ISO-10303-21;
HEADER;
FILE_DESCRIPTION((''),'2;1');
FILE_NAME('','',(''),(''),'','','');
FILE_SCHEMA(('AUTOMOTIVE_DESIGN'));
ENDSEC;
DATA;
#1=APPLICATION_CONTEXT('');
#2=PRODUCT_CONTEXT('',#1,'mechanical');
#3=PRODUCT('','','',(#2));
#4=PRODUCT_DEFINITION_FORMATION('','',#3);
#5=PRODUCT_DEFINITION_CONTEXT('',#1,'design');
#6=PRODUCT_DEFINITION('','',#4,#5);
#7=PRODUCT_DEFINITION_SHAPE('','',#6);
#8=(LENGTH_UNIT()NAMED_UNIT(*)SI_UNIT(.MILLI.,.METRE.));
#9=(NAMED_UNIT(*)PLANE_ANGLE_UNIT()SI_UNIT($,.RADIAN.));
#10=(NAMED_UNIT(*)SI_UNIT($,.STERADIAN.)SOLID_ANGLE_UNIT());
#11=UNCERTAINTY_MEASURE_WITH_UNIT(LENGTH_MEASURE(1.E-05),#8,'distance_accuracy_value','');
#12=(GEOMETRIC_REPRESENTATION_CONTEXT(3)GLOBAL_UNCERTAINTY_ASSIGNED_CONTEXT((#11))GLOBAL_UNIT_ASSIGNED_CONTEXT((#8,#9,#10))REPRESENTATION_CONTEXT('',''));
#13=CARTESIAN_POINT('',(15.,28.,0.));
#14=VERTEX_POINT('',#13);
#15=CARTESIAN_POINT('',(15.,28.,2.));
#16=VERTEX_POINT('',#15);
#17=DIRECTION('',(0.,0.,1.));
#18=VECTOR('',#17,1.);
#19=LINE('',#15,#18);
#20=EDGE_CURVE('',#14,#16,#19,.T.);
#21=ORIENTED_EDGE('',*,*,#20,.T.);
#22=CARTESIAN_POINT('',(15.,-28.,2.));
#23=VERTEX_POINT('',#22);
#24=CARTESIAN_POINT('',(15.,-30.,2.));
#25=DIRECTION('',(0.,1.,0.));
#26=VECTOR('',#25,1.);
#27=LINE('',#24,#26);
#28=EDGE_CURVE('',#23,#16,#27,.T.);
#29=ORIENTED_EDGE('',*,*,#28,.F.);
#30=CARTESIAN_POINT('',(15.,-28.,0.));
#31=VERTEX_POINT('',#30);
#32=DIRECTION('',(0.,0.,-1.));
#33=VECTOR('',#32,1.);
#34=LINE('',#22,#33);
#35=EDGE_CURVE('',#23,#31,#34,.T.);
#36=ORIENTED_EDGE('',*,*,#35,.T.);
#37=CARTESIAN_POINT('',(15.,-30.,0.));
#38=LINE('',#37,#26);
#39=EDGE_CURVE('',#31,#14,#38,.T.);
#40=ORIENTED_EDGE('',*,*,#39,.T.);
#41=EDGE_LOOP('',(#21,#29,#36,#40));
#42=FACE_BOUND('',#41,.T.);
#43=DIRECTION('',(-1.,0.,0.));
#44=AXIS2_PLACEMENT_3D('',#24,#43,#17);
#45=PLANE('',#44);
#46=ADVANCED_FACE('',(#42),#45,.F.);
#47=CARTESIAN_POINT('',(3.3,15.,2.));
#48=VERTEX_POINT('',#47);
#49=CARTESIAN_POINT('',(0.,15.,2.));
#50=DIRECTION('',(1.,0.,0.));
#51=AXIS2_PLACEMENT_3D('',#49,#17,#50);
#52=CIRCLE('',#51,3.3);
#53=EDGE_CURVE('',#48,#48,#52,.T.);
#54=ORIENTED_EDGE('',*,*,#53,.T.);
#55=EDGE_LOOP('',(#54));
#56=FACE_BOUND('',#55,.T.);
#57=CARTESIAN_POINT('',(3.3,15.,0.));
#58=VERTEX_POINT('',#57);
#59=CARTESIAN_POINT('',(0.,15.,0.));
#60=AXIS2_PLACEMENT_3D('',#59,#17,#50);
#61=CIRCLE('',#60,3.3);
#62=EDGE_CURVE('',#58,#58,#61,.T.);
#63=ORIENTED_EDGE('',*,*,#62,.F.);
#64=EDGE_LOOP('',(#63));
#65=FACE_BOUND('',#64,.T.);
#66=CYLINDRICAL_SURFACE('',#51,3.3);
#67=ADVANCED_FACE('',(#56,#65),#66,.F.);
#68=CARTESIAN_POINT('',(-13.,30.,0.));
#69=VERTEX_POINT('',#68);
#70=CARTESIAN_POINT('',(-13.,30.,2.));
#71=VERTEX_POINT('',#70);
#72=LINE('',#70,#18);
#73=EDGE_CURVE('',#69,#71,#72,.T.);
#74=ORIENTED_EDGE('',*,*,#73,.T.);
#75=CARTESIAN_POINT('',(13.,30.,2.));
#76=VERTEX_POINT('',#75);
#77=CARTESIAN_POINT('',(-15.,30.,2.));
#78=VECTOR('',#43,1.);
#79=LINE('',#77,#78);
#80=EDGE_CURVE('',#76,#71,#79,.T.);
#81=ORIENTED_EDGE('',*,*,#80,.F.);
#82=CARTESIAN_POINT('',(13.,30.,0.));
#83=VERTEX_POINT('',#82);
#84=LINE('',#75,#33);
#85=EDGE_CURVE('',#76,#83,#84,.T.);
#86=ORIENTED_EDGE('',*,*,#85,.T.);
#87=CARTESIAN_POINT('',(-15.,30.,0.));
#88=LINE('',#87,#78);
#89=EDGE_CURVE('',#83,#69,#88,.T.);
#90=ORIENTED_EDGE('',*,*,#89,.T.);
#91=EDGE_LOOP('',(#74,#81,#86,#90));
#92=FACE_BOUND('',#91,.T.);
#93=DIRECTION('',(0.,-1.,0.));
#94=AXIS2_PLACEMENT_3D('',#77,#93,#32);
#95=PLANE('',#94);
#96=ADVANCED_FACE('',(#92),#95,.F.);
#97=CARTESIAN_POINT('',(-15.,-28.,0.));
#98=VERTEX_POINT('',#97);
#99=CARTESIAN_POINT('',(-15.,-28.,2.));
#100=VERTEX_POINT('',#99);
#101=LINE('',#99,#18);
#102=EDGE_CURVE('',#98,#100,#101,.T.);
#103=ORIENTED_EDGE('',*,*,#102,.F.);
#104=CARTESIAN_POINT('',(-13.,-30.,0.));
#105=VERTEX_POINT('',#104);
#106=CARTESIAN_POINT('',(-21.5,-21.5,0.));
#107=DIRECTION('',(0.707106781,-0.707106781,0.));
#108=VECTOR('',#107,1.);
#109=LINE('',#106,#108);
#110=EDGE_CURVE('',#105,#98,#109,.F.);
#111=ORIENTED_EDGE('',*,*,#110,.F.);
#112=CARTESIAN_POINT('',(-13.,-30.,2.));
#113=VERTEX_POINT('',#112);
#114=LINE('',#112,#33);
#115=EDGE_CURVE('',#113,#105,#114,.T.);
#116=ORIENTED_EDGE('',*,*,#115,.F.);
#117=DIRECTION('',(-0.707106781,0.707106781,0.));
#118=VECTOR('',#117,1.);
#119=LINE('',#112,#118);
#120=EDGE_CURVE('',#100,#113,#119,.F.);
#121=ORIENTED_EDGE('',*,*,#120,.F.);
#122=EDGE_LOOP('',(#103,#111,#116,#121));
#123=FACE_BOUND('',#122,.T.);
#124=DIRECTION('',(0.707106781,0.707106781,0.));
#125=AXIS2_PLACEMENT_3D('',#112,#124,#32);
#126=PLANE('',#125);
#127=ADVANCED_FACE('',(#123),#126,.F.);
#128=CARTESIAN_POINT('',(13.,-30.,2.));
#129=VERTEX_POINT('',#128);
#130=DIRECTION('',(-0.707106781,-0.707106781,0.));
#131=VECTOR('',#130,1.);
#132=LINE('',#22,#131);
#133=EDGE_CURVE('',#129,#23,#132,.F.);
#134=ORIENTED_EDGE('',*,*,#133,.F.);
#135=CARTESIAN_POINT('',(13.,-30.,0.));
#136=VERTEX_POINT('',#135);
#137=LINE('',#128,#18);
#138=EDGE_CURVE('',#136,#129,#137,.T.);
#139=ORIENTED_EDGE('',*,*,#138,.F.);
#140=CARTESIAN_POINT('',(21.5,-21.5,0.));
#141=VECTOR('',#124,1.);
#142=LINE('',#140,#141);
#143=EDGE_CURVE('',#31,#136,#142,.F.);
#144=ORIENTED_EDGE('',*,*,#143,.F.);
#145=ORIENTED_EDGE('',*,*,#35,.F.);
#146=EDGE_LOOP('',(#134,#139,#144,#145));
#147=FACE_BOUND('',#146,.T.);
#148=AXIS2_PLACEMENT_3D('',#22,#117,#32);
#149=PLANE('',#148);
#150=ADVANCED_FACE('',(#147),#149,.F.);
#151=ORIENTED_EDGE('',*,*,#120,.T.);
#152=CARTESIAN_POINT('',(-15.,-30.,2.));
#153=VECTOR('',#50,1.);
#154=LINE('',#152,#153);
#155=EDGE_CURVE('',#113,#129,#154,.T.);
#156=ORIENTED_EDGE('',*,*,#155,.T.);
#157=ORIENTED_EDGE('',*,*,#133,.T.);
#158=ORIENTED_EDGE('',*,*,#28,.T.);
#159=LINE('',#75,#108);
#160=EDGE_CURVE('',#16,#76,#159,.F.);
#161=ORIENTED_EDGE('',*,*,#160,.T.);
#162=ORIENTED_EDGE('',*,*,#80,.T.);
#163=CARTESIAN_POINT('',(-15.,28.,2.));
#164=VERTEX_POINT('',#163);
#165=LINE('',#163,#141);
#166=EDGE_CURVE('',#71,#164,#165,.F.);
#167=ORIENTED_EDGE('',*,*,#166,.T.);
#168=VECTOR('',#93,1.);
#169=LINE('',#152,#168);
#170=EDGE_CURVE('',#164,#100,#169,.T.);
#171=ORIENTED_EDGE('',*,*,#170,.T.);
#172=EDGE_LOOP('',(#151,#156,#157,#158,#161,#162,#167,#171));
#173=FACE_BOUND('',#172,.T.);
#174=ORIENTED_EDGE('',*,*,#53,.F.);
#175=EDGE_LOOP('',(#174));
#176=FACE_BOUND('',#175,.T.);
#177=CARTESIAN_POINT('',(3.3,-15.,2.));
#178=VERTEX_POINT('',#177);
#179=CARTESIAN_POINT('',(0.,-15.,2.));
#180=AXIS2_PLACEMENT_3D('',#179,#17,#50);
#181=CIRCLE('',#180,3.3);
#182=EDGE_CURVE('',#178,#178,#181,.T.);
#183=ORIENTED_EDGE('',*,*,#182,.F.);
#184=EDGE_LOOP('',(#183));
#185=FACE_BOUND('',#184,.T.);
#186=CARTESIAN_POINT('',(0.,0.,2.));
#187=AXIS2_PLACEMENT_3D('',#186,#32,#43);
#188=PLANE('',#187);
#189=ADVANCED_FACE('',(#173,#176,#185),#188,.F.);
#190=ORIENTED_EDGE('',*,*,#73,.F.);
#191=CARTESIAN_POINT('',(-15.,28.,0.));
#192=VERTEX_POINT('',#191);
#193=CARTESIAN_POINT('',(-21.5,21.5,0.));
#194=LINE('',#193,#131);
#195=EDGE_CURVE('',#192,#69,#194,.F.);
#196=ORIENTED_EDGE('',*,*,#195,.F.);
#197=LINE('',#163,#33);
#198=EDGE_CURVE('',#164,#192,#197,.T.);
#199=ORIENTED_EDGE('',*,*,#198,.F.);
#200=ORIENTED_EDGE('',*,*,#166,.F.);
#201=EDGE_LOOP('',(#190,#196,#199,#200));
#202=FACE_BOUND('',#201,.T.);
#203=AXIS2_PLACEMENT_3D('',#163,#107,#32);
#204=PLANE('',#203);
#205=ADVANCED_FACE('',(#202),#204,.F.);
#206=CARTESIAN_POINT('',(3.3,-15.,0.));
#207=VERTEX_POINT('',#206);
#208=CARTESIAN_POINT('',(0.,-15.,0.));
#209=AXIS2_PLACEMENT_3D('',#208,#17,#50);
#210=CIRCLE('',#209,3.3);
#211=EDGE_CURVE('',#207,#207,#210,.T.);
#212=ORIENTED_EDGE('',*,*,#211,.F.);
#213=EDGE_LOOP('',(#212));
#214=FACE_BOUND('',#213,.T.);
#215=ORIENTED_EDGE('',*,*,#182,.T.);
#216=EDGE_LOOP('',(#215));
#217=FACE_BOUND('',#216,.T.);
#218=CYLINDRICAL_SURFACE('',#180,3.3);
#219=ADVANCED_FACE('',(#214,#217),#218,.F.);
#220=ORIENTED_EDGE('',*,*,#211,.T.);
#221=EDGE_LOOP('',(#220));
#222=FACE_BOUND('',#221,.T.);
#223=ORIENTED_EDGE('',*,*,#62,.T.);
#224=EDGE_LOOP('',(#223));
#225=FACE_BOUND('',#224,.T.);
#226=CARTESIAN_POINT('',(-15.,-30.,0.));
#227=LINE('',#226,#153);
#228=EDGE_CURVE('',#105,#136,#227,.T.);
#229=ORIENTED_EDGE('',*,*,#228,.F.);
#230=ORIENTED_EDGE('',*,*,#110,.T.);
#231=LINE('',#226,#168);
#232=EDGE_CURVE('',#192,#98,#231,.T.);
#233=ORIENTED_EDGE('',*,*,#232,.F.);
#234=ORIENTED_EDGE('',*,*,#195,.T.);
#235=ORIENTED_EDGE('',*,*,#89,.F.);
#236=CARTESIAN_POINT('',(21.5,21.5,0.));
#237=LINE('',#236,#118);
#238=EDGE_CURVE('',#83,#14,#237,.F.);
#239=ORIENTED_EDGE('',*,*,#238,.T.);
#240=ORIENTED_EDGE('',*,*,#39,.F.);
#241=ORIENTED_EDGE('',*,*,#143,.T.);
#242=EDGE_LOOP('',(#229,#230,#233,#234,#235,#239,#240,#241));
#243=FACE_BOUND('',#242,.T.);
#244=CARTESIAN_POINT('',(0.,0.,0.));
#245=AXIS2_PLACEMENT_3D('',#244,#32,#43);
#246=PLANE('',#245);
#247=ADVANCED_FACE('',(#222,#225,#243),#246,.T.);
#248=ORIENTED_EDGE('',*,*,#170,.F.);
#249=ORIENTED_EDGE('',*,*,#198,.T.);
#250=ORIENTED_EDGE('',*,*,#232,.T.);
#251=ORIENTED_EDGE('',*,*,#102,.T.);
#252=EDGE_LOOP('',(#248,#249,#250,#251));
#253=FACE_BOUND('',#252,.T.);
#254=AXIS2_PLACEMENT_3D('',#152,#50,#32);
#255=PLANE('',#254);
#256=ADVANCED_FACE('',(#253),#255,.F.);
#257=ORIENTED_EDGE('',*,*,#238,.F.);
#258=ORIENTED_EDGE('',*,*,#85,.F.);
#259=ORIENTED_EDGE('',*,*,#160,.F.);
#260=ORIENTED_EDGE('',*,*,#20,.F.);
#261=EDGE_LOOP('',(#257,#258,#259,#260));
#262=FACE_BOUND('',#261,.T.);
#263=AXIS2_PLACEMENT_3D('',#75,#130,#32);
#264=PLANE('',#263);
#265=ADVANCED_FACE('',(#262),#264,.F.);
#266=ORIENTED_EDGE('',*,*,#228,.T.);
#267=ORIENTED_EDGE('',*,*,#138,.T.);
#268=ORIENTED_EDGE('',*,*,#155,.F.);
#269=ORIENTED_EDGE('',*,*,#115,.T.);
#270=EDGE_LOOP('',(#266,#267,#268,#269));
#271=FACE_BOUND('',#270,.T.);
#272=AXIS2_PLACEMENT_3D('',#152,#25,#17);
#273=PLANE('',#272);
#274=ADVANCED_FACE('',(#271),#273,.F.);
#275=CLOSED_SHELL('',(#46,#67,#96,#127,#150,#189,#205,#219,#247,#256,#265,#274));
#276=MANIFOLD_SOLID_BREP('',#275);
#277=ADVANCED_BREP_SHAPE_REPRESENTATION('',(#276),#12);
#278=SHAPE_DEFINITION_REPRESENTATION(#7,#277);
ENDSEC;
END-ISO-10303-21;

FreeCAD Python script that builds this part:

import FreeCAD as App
import Part
import Sketcher

V = App.Vector


def edges_at(feature, points):
    """Names of the edges that pass closest to the given points."""
    edges = feature.Shape.Edges
    near = lambda p: min(range(len(edges)), key=lambda i: edges[i].distToShape(Part.Vertex(*p))[0])
    return sorted({f"Edge{near(p) + 1}" for p in points})


def add_polygon(sketch, points):
    """Adds a closed chain of lines whose ends are joined by coincident constraints."""
    first, n = sketch.GeometryCount, len(points)
    for a, b in zip(points, points[1:] + points[:1]):
        sketch.addGeometry(Part.LineSegment(App.Vector(*a, 0), App.Vector(*b, 0)), False)
    for i in range(n):
        sketch.addConstraint(Sketcher.Constraint("Coincident", first + i, 2, first + (i + 1) % n, 1))

doc = App.newDocument("Part")
body = doc.addObject("PartDesign::Body", "Body")

# Sketch on XY plane
sketch1 = doc.addObject("Sketcher::SketchObject", "Sketch")
body.addObject(sketch1)
sketch1.AttachmentSupport = (doc.XY_Plane, [""])
sketch1.MapMode = "FlatFace"
add_polygon(sketch1, [(-15, 30), (-15, -30), (15, -30), (15, 30)])  # lines 0-3
sketch1.addConstraint([
    Sketcher.Constraint("Vertical", 0),
    Sketcher.Constraint("Horizontal", 1),
    Sketcher.Constraint("Vertical", 2),
    Sketcher.Constraint("Horizontal", 3),
    Sketcher.Constraint("Symmetric", 0, 2, 2, 2, -1, 1),
    Sketcher.Constraint("DistanceX", 1, 1, 1, 2, 30.0),
    Sketcher.Constraint("DistanceY", 0, 2, 0, 1, 60.0),
])
pad1 = doc.addObject("PartDesign::Pad", "Pad")
body.addObject(pad1)
pad1.Profile = sketch1
pad1.Length = 2
doc.recompute()

chamfer = doc.addObject("PartDesign::Chamfer", "Chamfer")
body.addObject(chamfer)
chamfer.Base = (pad1, edges_at(pad1, [
    (15, -30, 1),
    (-15, -30, 1),
    (-15, 30, 1),
    (15, 30, 1),
]))
chamfer.Size = 2

# Sketch on XY plane
sketch2 = doc.addObject("Sketcher::SketchObject", "Sketch001")
body.addObject(sketch2)
sketch2.AttachmentSupport = (doc.XY_Plane, [""])
sketch2.MapMode = "FlatFace"
sketch2.AttachmentOffset = App.Placement(V(0, 0, 2), App.Rotation())
sketch2.addGeometry([
    Part.Circle(V(0, -45, 0), V(0, 0, 1), 3.3),
    Part.Circle(V(0, 45, 0), V(0, 0, 1), 3.3),
    Part.Circle(V(0, 15, 0), V(0, 0, 1), 3.3),
    Part.Circle(V(0, -15, 0), V(0, 0, 1), 3.3),
], False)
sketch2.addConstraint([
    Sketcher.Constraint("Equal", 0, 1),
    Sketcher.Constraint("Equal", 1, 2),
    Sketcher.Constraint("Equal", 2, 3),
    Sketcher.Constraint("Symmetric", 0, 3, 1, 3, -1, 1),
    Sketcher.Constraint("Symmetric", 2, 3, 3, 3, -1, 1),
    Sketcher.Constraint("PointOnObject", 0, 3, -2),
    Sketcher.Constraint("PointOnObject", 2, 3, -2),
    Sketcher.Constraint("Diameter", 0, 6.6),
    Sketcher.Constraint("DistanceY", 0, 3, -1, 1, 45.0),
    Sketcher.Constraint("DistanceY", -1, 1, 2, 3, 15.0),
])
doc.recompute()
hole = doc.addObject("PartDesign::Hole", "Hole")
body.addObject(hole)
hole.Profile = sketch2
hole.ThreadType = "None"
hole.Diameter = 6.6
hole.DepthType = "ThroughAll"

doc.recompute()
